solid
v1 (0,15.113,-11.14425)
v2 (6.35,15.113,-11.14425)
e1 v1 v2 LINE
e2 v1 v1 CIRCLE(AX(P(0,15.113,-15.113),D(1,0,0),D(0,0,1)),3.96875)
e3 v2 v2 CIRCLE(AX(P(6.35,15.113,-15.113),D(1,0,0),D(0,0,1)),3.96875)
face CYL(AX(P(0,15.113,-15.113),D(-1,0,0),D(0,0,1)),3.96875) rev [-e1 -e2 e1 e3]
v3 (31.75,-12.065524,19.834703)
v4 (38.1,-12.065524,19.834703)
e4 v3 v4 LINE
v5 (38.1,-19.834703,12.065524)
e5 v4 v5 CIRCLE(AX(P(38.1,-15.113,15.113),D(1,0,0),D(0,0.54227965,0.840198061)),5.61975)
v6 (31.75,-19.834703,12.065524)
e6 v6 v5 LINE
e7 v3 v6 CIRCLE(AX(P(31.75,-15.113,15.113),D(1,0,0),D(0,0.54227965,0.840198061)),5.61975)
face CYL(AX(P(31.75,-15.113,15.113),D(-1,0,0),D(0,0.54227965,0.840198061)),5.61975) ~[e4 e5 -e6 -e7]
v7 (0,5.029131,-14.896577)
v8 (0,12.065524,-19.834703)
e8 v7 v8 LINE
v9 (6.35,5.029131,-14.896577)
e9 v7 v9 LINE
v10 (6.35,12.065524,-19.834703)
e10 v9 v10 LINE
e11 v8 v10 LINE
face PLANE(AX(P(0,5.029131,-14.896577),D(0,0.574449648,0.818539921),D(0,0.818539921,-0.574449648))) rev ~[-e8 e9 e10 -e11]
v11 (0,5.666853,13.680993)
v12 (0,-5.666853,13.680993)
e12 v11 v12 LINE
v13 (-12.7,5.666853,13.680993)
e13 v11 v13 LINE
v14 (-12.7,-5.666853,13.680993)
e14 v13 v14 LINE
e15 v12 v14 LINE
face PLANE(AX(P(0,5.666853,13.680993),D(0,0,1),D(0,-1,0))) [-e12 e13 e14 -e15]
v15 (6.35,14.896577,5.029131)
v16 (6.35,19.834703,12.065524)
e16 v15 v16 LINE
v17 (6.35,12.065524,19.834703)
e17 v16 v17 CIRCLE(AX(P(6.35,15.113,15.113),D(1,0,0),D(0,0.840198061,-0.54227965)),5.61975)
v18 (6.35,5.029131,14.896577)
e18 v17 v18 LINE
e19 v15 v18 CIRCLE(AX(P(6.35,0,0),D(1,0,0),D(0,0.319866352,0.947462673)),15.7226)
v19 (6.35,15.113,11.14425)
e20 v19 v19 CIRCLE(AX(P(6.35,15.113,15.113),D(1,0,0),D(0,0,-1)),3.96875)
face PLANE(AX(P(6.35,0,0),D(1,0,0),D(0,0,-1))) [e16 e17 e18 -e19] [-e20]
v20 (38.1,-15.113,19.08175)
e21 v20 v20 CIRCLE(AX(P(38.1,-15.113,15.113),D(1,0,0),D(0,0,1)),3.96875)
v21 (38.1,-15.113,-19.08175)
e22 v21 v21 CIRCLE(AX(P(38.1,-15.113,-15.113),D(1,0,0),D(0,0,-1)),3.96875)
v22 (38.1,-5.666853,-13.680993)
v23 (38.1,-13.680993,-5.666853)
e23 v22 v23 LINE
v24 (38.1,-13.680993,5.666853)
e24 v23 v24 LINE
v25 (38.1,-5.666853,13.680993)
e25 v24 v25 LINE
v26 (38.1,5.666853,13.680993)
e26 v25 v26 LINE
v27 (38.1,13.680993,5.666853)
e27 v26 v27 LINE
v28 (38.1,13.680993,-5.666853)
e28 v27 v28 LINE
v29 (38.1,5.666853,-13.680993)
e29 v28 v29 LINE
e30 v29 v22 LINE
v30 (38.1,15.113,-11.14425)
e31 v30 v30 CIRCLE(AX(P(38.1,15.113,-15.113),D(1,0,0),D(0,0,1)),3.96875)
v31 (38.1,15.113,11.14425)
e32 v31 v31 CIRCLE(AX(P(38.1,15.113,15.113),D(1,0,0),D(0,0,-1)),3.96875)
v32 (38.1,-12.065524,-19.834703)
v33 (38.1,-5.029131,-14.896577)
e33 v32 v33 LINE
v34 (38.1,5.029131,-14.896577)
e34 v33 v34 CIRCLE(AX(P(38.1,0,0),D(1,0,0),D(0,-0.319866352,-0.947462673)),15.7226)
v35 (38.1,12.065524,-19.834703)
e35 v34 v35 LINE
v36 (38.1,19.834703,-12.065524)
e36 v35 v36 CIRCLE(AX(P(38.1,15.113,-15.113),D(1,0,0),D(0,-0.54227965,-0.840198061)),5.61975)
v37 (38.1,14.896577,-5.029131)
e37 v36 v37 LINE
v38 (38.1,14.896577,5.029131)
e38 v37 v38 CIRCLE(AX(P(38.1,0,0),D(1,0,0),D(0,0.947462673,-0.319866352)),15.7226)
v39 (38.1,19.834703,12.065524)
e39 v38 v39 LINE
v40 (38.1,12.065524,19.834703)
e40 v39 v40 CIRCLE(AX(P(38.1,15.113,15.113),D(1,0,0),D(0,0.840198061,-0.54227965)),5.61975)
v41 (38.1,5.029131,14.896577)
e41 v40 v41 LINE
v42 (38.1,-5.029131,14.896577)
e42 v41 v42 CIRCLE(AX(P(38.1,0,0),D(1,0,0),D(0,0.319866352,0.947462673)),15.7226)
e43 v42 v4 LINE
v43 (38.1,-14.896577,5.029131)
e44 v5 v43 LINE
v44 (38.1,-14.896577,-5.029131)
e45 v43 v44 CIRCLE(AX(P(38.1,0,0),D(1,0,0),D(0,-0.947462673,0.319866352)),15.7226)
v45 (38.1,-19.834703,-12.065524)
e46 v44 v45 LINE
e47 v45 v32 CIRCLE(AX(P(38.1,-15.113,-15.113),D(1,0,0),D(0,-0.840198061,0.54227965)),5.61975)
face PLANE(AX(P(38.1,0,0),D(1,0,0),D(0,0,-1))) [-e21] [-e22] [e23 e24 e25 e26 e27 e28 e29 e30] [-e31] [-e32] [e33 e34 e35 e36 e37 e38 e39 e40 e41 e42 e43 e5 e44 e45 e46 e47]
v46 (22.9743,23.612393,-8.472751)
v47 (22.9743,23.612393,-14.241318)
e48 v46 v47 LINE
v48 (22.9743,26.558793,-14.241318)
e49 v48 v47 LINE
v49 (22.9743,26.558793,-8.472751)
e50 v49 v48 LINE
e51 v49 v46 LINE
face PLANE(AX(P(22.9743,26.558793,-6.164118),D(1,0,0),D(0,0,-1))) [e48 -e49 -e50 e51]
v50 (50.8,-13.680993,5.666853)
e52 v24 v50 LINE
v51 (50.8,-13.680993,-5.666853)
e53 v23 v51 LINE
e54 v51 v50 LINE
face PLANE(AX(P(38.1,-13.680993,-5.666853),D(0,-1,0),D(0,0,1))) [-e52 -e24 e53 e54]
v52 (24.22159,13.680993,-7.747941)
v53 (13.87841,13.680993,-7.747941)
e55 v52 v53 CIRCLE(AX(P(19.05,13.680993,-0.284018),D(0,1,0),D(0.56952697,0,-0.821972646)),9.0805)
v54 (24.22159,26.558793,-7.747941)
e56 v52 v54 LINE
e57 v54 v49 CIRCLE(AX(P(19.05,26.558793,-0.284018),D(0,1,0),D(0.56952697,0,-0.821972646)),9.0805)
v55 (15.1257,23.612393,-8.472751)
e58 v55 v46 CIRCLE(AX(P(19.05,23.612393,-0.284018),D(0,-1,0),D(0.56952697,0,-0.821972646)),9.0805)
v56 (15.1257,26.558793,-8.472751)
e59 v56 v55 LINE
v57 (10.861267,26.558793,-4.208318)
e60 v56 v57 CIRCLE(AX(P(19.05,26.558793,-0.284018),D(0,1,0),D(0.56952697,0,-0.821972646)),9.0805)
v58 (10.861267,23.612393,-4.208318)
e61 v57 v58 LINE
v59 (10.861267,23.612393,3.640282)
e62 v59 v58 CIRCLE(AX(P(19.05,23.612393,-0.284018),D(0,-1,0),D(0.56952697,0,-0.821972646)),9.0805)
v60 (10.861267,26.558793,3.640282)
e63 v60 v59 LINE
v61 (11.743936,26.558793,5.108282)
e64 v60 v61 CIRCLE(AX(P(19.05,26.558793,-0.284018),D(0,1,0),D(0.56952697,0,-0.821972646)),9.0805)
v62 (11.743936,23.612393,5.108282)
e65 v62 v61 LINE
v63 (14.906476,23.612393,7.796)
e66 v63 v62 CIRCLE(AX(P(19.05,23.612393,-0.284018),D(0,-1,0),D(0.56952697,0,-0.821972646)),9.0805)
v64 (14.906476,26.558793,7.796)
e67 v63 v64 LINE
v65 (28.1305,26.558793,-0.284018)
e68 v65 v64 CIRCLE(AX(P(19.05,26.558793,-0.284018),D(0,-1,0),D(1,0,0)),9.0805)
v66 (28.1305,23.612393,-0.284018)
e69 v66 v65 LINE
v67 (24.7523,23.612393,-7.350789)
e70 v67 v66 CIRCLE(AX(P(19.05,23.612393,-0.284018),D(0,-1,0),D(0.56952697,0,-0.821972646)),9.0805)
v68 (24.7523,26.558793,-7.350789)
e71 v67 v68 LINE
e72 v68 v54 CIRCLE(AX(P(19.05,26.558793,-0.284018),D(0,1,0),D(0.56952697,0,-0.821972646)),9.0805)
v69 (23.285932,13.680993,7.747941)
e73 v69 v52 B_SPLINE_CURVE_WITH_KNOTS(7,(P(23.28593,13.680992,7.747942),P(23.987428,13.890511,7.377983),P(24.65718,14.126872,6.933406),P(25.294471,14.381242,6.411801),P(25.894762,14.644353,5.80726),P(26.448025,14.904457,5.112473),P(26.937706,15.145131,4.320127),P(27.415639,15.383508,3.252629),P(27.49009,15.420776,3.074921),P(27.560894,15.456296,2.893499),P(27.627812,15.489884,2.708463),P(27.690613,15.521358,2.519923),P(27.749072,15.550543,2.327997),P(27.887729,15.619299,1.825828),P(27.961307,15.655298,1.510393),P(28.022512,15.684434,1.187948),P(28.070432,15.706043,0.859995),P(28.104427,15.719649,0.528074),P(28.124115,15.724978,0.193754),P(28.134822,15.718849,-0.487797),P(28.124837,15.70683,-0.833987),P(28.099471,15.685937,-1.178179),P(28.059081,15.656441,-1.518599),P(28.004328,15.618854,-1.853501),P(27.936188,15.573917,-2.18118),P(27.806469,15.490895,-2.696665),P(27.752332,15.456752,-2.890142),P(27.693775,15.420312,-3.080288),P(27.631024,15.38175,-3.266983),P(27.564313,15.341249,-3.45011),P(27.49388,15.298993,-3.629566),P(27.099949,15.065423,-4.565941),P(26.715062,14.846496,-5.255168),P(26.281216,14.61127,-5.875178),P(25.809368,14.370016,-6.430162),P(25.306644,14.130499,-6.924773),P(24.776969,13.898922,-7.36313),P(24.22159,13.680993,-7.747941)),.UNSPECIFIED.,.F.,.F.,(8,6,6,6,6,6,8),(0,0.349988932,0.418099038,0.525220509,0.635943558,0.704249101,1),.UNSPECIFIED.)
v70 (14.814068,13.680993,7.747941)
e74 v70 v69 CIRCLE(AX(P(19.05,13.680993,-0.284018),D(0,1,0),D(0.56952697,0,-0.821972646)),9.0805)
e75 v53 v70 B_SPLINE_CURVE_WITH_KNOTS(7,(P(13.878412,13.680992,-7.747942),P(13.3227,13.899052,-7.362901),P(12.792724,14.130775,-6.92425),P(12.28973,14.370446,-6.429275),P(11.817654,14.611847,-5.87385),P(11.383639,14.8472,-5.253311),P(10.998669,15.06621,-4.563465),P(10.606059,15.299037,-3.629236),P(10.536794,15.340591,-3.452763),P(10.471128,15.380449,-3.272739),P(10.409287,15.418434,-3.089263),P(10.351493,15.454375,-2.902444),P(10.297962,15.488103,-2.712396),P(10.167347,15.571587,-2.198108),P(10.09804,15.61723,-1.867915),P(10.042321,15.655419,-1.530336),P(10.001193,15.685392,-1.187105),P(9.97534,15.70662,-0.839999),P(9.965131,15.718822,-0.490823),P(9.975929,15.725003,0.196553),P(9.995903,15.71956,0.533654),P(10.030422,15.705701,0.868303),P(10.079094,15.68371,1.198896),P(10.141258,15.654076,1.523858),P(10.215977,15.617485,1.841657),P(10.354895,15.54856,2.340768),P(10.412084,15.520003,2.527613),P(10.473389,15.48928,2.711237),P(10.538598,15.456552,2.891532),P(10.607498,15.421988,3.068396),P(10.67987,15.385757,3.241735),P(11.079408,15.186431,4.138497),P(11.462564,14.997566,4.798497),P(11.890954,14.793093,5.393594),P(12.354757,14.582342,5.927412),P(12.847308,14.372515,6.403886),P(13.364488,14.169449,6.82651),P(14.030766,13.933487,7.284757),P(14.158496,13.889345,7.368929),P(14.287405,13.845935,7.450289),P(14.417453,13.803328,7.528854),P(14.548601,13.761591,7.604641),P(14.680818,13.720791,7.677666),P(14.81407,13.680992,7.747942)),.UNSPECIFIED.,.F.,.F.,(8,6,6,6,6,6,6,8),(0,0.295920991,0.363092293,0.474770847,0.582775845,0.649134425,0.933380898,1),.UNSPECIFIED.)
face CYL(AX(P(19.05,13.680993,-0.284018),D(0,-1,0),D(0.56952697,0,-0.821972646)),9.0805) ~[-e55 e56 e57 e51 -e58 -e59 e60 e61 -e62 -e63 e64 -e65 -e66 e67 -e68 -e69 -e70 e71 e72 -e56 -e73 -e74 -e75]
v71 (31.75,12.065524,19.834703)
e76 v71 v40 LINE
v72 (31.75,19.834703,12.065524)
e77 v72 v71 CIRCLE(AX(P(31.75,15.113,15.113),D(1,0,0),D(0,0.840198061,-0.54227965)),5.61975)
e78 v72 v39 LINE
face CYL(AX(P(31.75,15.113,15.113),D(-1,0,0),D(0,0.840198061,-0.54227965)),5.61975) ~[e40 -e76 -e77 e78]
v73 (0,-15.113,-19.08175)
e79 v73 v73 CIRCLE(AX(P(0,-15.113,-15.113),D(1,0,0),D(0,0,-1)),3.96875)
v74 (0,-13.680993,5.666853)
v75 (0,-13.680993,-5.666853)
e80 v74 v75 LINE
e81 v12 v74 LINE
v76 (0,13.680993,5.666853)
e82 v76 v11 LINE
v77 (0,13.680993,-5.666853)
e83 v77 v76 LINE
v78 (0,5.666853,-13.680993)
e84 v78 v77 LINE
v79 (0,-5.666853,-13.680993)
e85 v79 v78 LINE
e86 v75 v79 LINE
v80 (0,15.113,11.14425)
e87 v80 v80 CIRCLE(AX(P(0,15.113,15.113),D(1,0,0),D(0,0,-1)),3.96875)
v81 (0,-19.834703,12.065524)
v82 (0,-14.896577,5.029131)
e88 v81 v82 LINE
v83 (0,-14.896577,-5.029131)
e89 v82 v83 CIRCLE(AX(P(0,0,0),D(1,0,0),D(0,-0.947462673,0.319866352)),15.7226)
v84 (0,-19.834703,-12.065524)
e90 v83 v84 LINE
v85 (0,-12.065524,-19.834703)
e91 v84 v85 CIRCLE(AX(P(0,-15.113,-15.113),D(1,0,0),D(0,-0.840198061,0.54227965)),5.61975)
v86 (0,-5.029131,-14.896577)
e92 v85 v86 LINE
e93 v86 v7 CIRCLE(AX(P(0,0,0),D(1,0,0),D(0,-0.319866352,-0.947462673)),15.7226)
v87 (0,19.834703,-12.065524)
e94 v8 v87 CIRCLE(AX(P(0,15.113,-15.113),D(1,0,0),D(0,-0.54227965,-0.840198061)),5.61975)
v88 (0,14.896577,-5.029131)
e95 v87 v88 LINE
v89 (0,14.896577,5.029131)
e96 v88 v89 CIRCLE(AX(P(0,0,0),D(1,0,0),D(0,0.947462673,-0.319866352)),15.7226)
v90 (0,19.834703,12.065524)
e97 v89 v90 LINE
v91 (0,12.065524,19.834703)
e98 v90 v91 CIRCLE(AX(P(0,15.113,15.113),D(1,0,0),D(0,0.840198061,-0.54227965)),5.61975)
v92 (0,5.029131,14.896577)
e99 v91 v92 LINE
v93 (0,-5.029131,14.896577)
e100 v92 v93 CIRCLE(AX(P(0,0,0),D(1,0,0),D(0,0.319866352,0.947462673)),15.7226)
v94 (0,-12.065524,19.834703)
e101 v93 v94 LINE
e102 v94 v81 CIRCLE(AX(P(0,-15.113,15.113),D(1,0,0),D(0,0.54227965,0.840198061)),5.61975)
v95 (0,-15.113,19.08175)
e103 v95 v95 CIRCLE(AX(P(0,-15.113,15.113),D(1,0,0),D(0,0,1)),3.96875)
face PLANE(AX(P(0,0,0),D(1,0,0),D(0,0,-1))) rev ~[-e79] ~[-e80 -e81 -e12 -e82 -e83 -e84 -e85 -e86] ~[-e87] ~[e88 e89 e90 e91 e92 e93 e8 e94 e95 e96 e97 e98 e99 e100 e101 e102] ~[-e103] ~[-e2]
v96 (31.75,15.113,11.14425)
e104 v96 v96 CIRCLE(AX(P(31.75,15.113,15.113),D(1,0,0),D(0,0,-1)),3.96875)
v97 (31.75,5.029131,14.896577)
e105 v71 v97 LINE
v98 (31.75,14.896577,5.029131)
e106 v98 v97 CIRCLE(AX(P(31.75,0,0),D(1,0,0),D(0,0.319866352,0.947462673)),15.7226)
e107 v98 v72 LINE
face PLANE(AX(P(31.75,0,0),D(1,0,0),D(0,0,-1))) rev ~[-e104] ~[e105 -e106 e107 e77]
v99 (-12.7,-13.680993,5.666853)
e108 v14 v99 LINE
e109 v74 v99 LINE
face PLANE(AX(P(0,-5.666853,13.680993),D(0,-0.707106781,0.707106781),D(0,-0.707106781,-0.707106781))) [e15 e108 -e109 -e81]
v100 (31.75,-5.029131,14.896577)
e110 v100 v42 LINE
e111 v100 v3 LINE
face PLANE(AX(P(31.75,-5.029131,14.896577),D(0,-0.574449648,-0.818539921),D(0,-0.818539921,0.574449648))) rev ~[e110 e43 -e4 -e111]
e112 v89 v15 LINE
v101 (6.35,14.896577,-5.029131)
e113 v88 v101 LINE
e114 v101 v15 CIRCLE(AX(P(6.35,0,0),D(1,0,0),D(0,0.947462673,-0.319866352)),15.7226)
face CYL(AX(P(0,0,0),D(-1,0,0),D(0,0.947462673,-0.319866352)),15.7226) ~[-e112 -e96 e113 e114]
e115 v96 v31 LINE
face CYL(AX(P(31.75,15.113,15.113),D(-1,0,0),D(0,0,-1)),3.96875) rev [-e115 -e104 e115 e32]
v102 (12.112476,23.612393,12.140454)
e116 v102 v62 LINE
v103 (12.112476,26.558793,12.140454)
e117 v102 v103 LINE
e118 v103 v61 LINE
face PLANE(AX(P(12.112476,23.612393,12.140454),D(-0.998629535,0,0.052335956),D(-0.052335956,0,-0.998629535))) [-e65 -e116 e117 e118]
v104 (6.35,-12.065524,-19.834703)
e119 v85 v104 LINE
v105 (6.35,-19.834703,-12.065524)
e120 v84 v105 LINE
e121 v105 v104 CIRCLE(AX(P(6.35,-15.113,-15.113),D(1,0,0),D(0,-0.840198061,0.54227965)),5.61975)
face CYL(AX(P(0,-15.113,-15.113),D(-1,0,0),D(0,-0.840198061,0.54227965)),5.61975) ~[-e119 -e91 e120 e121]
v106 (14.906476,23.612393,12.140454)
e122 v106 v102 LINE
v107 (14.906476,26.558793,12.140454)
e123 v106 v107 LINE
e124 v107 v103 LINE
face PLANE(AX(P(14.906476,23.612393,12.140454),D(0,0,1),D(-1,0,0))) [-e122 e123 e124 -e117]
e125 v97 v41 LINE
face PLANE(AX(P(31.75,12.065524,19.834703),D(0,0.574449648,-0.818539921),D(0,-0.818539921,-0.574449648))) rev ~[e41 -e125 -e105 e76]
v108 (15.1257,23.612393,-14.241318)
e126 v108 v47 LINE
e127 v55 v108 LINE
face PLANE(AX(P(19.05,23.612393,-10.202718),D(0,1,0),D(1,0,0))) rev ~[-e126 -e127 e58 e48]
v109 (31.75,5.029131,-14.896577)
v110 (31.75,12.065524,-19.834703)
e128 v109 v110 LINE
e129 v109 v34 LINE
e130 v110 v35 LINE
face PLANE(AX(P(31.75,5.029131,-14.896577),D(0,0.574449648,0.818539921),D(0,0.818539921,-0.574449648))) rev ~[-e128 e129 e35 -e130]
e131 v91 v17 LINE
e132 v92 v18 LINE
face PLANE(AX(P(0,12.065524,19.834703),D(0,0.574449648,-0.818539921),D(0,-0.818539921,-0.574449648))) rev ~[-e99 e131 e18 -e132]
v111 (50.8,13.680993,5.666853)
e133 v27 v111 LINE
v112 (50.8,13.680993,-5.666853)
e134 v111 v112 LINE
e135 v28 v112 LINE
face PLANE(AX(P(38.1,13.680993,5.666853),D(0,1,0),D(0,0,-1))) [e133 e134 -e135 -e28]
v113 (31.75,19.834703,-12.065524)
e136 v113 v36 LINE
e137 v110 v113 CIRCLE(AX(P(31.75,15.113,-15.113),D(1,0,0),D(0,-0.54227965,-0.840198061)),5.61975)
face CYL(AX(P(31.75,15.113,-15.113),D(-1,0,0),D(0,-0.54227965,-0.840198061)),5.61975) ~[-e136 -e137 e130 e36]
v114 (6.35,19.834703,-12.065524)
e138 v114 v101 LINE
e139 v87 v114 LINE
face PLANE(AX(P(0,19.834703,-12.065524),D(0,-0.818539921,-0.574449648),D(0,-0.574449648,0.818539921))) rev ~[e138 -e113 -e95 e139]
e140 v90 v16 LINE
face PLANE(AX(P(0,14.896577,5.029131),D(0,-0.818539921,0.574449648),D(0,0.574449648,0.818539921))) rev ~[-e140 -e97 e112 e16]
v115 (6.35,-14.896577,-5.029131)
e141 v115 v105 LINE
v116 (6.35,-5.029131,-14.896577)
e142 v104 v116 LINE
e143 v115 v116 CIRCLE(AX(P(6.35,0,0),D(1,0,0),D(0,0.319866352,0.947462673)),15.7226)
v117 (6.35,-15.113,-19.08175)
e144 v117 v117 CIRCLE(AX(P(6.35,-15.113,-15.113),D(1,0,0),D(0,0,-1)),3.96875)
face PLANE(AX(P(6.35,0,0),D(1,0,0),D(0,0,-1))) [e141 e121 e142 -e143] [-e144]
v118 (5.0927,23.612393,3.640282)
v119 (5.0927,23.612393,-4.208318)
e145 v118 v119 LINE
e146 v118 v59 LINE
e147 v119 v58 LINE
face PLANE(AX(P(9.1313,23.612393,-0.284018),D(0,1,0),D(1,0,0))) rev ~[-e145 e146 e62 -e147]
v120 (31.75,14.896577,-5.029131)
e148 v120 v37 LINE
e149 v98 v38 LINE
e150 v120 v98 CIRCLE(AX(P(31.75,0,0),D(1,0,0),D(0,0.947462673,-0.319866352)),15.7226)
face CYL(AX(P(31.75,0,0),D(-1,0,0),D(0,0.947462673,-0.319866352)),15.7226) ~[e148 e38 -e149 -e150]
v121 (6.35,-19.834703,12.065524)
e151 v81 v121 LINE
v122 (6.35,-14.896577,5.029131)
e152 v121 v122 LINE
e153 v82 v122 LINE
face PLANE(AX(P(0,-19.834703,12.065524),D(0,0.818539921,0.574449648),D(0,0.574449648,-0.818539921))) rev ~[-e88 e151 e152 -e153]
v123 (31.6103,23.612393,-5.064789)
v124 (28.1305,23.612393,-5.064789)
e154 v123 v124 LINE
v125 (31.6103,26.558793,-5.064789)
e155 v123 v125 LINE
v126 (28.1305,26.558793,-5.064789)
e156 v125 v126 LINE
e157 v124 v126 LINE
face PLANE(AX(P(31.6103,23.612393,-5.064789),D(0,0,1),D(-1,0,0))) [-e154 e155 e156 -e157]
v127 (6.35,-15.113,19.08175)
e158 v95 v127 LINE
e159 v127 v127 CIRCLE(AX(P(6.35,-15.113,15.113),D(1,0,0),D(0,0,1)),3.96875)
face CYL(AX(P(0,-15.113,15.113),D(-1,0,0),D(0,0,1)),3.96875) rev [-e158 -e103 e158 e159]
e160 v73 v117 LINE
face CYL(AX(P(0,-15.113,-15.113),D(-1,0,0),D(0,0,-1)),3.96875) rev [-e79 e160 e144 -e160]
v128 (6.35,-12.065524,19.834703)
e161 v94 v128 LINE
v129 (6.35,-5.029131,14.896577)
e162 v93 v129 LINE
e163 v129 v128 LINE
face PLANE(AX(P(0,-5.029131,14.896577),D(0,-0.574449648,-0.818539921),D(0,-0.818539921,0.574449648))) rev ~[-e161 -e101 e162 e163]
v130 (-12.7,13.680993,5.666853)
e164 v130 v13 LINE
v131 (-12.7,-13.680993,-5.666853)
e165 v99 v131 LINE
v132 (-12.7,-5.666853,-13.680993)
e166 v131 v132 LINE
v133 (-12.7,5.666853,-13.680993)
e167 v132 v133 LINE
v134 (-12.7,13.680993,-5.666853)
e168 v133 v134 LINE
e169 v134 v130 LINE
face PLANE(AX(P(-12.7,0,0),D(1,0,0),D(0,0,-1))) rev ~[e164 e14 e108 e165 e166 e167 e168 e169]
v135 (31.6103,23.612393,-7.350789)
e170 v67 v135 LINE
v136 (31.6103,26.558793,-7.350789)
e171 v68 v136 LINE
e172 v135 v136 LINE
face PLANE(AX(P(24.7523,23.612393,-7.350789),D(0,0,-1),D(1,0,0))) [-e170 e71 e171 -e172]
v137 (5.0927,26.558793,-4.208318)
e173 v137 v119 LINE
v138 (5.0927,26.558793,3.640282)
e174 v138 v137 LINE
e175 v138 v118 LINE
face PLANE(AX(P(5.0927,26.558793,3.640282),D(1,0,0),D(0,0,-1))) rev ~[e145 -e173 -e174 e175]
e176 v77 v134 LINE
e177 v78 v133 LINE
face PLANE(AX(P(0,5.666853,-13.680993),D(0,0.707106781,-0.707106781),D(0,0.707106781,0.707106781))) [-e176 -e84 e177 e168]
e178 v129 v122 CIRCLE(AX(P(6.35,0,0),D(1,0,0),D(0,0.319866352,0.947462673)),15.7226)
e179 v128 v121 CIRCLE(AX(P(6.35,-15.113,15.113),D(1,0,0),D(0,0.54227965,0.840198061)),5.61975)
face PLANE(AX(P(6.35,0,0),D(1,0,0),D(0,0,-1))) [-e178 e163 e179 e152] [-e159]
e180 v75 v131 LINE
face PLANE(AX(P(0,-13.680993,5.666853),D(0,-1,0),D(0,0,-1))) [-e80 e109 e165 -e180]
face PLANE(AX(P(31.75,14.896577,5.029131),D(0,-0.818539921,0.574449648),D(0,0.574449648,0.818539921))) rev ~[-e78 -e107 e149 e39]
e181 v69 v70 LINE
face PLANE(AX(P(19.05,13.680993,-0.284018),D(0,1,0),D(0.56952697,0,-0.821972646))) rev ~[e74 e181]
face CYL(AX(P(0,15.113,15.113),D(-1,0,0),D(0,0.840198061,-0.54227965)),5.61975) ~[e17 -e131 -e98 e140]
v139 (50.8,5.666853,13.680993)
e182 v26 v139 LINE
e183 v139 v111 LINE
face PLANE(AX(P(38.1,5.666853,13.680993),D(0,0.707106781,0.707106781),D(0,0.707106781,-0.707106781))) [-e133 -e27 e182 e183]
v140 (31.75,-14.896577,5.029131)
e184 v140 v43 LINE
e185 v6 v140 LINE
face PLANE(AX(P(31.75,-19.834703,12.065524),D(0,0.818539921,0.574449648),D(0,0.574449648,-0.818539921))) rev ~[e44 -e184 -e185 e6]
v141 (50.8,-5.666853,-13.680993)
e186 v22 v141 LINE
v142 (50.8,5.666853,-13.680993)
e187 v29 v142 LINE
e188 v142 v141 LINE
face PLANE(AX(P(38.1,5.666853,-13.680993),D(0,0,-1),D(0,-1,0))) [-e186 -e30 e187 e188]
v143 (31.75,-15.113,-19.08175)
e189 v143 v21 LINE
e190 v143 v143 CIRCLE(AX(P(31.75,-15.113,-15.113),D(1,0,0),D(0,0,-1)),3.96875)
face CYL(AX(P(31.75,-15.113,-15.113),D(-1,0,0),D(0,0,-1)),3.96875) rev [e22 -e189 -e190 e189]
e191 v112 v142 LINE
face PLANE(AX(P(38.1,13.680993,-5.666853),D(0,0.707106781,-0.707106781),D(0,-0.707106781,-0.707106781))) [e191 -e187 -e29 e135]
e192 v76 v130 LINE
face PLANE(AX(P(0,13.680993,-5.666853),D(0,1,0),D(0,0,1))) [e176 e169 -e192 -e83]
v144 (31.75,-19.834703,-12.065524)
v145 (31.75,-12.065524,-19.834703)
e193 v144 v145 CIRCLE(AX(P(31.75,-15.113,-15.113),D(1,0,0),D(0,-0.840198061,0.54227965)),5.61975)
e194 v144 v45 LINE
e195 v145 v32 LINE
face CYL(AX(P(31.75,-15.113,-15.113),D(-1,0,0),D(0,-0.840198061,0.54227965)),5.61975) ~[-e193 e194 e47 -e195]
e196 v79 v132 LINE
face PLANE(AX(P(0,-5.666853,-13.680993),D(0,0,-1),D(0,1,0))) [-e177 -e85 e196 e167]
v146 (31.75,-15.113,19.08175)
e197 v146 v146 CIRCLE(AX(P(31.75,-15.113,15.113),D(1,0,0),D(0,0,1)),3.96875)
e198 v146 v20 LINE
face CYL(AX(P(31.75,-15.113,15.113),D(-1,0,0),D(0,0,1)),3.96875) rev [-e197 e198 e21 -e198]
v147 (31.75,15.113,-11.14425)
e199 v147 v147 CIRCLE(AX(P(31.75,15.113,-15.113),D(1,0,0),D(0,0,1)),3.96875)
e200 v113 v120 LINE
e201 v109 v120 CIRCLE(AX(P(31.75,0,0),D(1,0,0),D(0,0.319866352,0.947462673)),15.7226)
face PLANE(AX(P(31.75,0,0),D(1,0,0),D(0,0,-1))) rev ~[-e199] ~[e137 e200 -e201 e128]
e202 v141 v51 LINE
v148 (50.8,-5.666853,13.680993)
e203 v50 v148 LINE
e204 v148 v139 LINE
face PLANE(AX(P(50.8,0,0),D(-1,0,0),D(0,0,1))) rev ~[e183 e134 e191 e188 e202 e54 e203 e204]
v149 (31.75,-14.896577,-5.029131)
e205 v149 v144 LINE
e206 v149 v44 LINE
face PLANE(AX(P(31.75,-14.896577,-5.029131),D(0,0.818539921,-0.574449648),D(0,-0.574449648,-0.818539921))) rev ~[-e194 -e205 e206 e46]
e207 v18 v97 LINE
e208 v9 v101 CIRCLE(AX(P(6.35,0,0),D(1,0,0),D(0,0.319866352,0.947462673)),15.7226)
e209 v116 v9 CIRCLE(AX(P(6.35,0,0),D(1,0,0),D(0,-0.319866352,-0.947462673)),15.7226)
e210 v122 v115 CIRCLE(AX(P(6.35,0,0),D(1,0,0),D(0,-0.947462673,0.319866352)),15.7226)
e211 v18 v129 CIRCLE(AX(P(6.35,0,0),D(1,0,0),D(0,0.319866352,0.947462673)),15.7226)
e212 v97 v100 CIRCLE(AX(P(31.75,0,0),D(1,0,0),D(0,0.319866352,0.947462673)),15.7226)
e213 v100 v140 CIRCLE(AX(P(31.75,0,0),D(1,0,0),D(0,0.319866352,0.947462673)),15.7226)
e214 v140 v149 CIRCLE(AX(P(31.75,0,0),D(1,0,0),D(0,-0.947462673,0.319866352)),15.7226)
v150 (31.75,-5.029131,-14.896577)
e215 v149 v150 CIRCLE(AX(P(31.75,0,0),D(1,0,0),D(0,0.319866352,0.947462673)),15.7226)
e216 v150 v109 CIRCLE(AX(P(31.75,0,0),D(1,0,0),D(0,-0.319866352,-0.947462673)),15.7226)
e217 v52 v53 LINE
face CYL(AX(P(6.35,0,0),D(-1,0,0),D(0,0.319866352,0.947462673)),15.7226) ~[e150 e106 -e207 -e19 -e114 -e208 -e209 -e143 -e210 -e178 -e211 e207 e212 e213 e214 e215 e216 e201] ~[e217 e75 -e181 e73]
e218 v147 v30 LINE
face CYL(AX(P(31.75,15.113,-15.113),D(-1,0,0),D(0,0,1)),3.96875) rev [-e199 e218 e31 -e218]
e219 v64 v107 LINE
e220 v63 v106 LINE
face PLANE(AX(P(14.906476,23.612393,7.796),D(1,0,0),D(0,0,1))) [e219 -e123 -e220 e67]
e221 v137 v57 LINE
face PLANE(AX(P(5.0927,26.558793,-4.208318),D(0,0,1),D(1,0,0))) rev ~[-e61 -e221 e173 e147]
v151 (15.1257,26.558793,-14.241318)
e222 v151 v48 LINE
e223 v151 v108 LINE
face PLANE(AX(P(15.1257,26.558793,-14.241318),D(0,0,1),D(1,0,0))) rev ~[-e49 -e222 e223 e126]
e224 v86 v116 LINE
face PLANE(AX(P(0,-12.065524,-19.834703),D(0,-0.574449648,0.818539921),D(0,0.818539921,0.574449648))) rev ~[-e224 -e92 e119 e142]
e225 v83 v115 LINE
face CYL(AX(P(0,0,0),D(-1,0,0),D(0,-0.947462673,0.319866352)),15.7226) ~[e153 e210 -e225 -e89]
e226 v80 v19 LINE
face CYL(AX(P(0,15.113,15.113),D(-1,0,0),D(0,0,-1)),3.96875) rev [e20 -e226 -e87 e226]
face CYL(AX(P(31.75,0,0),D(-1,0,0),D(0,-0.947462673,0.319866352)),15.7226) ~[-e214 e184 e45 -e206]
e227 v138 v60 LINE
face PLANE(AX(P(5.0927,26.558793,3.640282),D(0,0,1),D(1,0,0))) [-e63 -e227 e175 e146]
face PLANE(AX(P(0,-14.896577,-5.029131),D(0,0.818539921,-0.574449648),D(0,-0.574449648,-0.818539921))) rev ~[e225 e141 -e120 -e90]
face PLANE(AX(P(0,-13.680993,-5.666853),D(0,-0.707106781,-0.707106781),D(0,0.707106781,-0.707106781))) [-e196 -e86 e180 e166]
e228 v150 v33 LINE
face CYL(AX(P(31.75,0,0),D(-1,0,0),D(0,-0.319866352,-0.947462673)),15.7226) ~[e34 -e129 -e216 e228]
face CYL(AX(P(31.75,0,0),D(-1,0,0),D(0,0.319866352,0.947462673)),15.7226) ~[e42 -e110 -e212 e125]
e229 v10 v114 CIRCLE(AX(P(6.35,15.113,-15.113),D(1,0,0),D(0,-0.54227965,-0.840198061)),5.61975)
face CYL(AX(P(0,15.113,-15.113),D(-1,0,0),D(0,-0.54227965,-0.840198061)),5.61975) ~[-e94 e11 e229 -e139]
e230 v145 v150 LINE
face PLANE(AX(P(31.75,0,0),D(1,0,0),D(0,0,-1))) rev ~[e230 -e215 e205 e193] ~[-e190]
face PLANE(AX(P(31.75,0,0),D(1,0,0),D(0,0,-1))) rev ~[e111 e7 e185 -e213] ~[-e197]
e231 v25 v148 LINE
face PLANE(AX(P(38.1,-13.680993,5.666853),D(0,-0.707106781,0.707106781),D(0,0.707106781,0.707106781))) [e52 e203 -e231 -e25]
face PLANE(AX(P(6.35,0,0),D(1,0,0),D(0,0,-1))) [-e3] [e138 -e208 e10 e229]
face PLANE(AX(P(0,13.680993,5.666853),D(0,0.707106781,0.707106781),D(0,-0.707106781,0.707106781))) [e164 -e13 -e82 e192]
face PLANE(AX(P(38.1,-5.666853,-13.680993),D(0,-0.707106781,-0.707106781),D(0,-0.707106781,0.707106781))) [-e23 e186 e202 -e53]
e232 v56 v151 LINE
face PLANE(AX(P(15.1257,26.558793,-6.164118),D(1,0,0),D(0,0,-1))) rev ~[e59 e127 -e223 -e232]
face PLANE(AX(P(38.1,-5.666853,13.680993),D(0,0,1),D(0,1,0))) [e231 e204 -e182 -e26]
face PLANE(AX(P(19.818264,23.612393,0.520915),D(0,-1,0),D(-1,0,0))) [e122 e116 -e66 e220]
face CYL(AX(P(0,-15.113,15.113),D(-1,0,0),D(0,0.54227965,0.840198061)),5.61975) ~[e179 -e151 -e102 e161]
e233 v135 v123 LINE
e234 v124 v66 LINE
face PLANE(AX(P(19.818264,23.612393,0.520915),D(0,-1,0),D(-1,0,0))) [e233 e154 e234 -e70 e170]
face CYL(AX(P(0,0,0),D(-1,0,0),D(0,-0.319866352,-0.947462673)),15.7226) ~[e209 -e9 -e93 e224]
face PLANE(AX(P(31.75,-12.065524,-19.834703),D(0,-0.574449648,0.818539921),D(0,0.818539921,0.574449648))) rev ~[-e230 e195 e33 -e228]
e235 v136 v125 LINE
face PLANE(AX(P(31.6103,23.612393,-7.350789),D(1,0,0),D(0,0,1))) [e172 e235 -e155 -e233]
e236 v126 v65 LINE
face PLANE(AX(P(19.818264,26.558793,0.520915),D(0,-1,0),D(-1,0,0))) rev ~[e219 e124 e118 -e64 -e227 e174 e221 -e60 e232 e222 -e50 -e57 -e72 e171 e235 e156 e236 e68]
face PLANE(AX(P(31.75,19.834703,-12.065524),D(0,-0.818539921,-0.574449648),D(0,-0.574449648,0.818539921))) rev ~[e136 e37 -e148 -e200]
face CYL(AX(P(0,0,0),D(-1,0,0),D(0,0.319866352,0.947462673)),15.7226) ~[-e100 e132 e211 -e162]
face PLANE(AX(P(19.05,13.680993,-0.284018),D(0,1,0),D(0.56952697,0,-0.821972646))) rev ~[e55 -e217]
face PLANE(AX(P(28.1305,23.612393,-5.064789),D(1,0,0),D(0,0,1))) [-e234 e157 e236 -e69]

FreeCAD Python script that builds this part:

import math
import FreeCAD as App
import Part
import Sketcher
from FreeCAD import Vector
Q = App.Units.Quantity

doc = App.newDocument("Part")
body = doc.addObject("PartDesign::Body", "Body")

sketch1 = body.newObject("Sketcher::SketchObject", "Sketch")
sketch1.AttachmentSupport = (doc.getObject("YZ_Plane"), [""])
sketch1.MapMode = "FlatFace"
sketch1.addGeometry([
    Part.LineSegment(Vector(12.1, 19.8, 0), Vector(5, 14.9, 0)),
    Part.ArcOfCircle(Part.Circle(Vector(0, 0, 0), Vector(0, 0, 1), 15.7), math.radians(71), math.radians(109)),
    Part.LineSegment(Vector(-5, 14.9, 0), Vector(-12.1, 19.8, 0)),
    Part.ArcOfCircle(Part.Circle(Vector(-15.1, 15.1, 0), Vector(0, 0, 1), 5.6), math.radians(57), math.radians(213)),
    Part.LineSegment(Vector(-19.8, 12.1, 0), Vector(-14.9, 5, 0)),
    Part.ArcOfCircle(Part.Circle(Vector(0, 0, 0), Vector(0, 0, 1), 15.7), math.radians(161), math.radians(199)),
    Part.LineSegment(Vector(-14.9, -5, 0), Vector(-19.8, -12.1, 0)),
    Part.ArcOfCircle(Part.Circle(Vector(-15.1, -15.1, 0), Vector(0, 0, 1), 5.6), math.radians(147), math.radians(303)),
    Part.LineSegment(Vector(-12.1, -19.8, 0), Vector(-5, -14.9, 0)),
    Part.ArcOfCircle(Part.Circle(Vector(0, 0, 0), Vector(0, 0, 1), 15.7), math.radians(-109), math.radians(-71)),
    Part.LineSegment(Vector(5, -14.9, 0), Vector(12.1, -19.8, 0)),
    Part.ArcOfCircle(Part.Circle(Vector(15.1, -15.1, 0), Vector(0, 0, 1), 5.6), math.radians(-123), math.radians(33)),
    Part.LineSegment(Vector(19.8, -12.1, 0), Vector(14.9, -5, 0)),
    Part.ArcOfCircle(Part.Circle(Vector(0, 0, 0), Vector(0, 0, 1), 15.7), math.radians(-19), math.radians(19)),
    Part.LineSegment(Vector(14.9, 5, 0), Vector(19.8, 12.1, 0)),
    Part.ArcOfCircle(Part.Circle(Vector(15.1, 15.1, 0), Vector(0, 0, 1), 5.6), math.radians(-33), math.radians(123)),
    Part.Circle(Vector(-15.1, 15.1, 0), Vector(0, 0, 1), 4),
    Part.Circle(Vector(-15.1, -15.1, 0), Vector(0, 0, 1), 4),
    Part.Circle(Vector(15.1, 15.1, 0), Vector(0, 0, 1), 4),
    Part.Circle(Vector(15.1, -15.1, 0), Vector(0, 0, 1), 4),
], False)
sketch1.addConstraint([
    Sketcher.Constraint("Coincident", 0, 2, 1, 1),
    Sketcher.Constraint("Coincident", 1, 2, 2, 1),
    Sketcher.Constraint("Coincident", 2, 2, 3, 1),
    Sketcher.Constraint("Coincident", 3, 2, 4, 1),
    Sketcher.Constraint("Coincident", 4, 2, 5, 1),
    Sketcher.Constraint("Coincident", 5, 2, 6, 1),
    Sketcher.Constraint("Coincident", 6, 2, 7, 1),
    Sketcher.Constraint("Coincident", 7, 2, 8, 1),
    Sketcher.Constraint("Coincident", 8, 2, 9, 1),
    Sketcher.Constraint("Coincident", 9, 2, 10, 1),
    Sketcher.Constraint("Coincident", 10, 2, 11, 1),
    Sketcher.Constraint("Coincident", 11, 2, 12, 1),
    Sketcher.Constraint("Coincident", 12, 2, 13, 1),
    Sketcher.Constraint("Coincident", 13, 2, 14, 1),
    Sketcher.Constraint("Coincident", 14, 2, 15, 1),
    Sketcher.Constraint("Coincident", 15, 2, 0, 1),
    Sketcher.Constraint("Coincident", 1, 3, -1, 1),
    Sketcher.Constraint("Coincident", 5, 3, -1, 1),
    Sketcher.Constraint("Coincident", 9, 3, -1, 1),
    Sketcher.Constraint("Coincident", 13, 3, -1, 1),
    Sketcher.Constraint("Coincident", 16, 3, 3, 3),
    Sketcher.Constraint("Coincident", 17, 3, 7, 3),
    Sketcher.Constraint("Coincident", 18, 3, 15, 3),
    Sketcher.Constraint("Coincident", 19, 3, 11, 3),
    Sketcher.Constraint("Equal", 1, 5),
    Sketcher.Constraint("Equal", 3, 7),
    Sketcher.Constraint("Equal", 5, 9),
    Sketcher.Constraint("Equal", 7, 11),
    Sketcher.Constraint("Equal", 9, 13),
    Sketcher.Constraint("Equal", 11, 15),
    Sketcher.Constraint("Equal", 16, 17),
    Sketcher.Constraint("Equal", 17, 18),
    Sketcher.Constraint("Equal", 18, 19),
    Sketcher.Constraint("Symmetric", 3, 3, 11, 3, -1, 1),
    Sketcher.Constraint("Symmetric", 7, 3, 15, 3, -1, 1),
    Sketcher.Constraint("Symmetric", 7, 3, 11, 3, -2),
    Sketcher.Constraint("Perpendicular", 0, 4),
    Sketcher.Constraint("Perpendicular", 2, 6),
    Sketcher.Constraint("Perpendicular", 4, 8),
    Sketcher.Constraint("Perpendicular", 6, 10),
    Sketcher.Constraint("Perpendicular", 8, 12),
    Sketcher.Constraint("Perpendicular", 10, 14),
    Sketcher.Constraint("Horizontal", 0, 2, 1, 2),
    Sketcher.Constraint("Horizontal", 8, 2, 9, 2),
    Sketcher.Constraint("Horizontal", 7, 2, 10, 2),
    Sketcher.Constraint("Horizontal", 6, 2, 11, 2),
    Sketcher.Constraint("Horizontal", 4, 2, 13, 2),
    Sketcher.Constraint("Vertical", 4, 2, 5, 2),
    Sketcher.Constraint("Vertical", 2, 2, 7, 2),
    Sketcher.Constraint("Equal", 2, 4),
    Sketcher.Constraint("Diameter", 16, Q("0.3125 in")),
    Sketcher.Constraint("Radius", 1, Q("0.619 in")),
    Sketcher.Constraint("DistanceY", 7, 3, 3, 3, Q("1.19 in")),
    Sketcher.Constraint("DistanceX", 7, 3, 11, 3, Q("1.19 in")),
    Sketcher.Constraint("Radius", 3, 5.61975),
    Sketcher.Constraint("DistanceX", -1, 1, 0, 2, 5.029131),
    Sketcher.Constraint("DistanceX", 3, 2, 2, 2, 7.769179),
])
pad1 = body.newObject("PartDesign::Pad", "Pad")
pad1.Profile = sketch1
pad1.Length = Q("0.25 in")

sketch2 = body.newObject("Sketcher::SketchObject", "Sketch001")
sketch2.AttachmentSupport = (doc.getObject("YZ_Plane"), [""])
sketch2.MapMode = "FlatFace"
sketch2.addGeometry([
    Part.LineSegment(Vector(-6, 14, 0), Vector(6, 14, 0)),
    Part.LineSegment(Vector(6, 14, 0), Vector(14, 6, 0)),
    Part.LineSegment(Vector(14, 6, 0), Vector(14, -6, 0)),
    Part.LineSegment(Vector(14, -6, 0), Vector(6, -14, 0)),
    Part.LineSegment(Vector(6, -14, 0), Vector(-6, -14, 0)),
    Part.LineSegment(Vector(-6, -14, 0), Vector(-14, -6, 0)),
    Part.LineSegment(Vector(-14, -6, 0), Vector(-14, 6, 0)),
    Part.LineSegment(Vector(-14, 6, 0), Vector(-6, 14, 0)),
], False)
sketch2.addConstraint([
    Sketcher.Constraint("Coincident", 0, 2, 1, 1),
    Sketcher.Constraint("Coincident", 1, 2, 2, 1),
    Sketcher.Constraint("Coincident", 2, 2, 3, 1),
    Sketcher.Constraint("Coincident", 3, 2, 4, 1),
    Sketcher.Constraint("Coincident", 4, 2, 5, 1),
    Sketcher.Constraint("Coincident", 5, 2, 6, 1),
    Sketcher.Constraint("Coincident", 6, 2, 7, 1),
    Sketcher.Constraint("Coincident", 7, 2, 0, 1),
    Sketcher.Constraint("Horizontal", 0),
    Sketcher.Constraint("Vertical", 2),
    Sketcher.Constraint("Horizontal", 4),
    Sketcher.Constraint("Vertical", 6),
    Sketcher.Constraint("Symmetric", 0, 2, 4, 2, -1, 1),
    Sketcher.Constraint("Symmetric", 1, 2, 5, 2, -1, 1),
    Sketcher.Constraint("Perpendicular", 1, 3),
    Sketcher.Constraint("Perpendicular", 5, 7),
    Sketcher.Constraint("Horizontal", 2, 2, 5, 2),
    Sketcher.Constraint("Horizontal", 1, 2, 6, 2),
    Sketcher.Constraint("Vertical", 0, 2, 3, 2),
    Sketcher.Constraint("Equal", 4, 2),
    Sketcher.Constraint("DistanceX", 0, 1, 0, 2, 11.333706),
    Sketcher.Constraint("DistanceX", 0, 2, 1, 2, 8.01414),
])
pad2 = body.newObject("PartDesign::Pad", "Pad001")
pad2.Profile = sketch2
pad2.Length = Q("0.5 in")
pad2.Reversed = True

sketch3 = body.newObject("Sketcher::SketchObject", "Sketch002")
sketch3.AttachmentSupport = (doc.getObject("YZ_Plane"), [""])
sketch3.MapMode = "FlatFace"
sketch3.AttachmentOffset = App.Placement(Vector(0, 0, 0.25 * 25.4), App.Rotation())
sketch3.addGeometry(Part.Circle(Vector(0, 0, 0), Vector(0, 0, 1), 16), False)
sketch3.addConstraint([
    Sketcher.Constraint("Coincident", 0, 3, -1, 1),
    Sketcher.Constraint("Diameter", 0, Q("1.238 in")),
])
pad3 = body.newObject("PartDesign::Pad", "Pad002")
pad3.Profile = sketch3
pad3.Length = Q("1 in")

sketch4 = body.newObject("Sketcher::SketchObject", "Sketch003")
sketch4.AttachmentSupport = (doc.getObject("YZ_Plane"), [""])
sketch4.MapMode = "FlatFace"
sketch4.AttachmentOffset = App.Placement(Vector(0, 0, 1.25 * 25.4), App.Rotation())
sketch4.addGeometry([
    Part.LineSegment(Vector(12.1, 19.8, 0), Vector(5, 14.9, 0)),
    Part.ArcOfCircle(Part.Circle(Vector(0, 0, 0), Vector(0, 0, 1), 15.7), math.radians(71), math.radians(109)),
    Part.LineSegment(Vector(-5, 14.9, 0), Vector(-12.1, 19.8, 0)),
    Part.ArcOfCircle(Part.Circle(Vector(-15.1, 15.1, 0), Vector(0, 0, 1), 5.6), math.radians(57), math.radians(213)),
    Part.LineSegment(Vector(-19.8, 12.1, 0), Vector(-14.9, 5, 0)),
    Part.ArcOfCircle(Part.Circle(Vector(0, 0, 0), Vector(0, 0, 1), 15.7), math.radians(161), math.radians(199)),
    Part.LineSegment(Vector(-14.9, -5, 0), Vector(-19.8, -12.1, 0)),
    Part.ArcOfCircle(Part.Circle(Vector(-15.1, -15.1, 0), Vector(0, 0, 1), 5.6), math.radians(147), math.radians(303)),
    Part.LineSegment(Vector(-12.1, -19.8, 0), Vector(-5, -14.9, 0)),
    Part.ArcOfCircle(Part.Circle(Vector(0, 0, 0), Vector(0, 0, 1), 15.7), math.radians(-109), math.radians(-71)),
    Part.LineSegment(Vector(5, -14.9, 0), Vector(12.1, -19.8, 0)),
    Part.ArcOfCircle(Part.Circle(Vector(15.1, -15.1, 0), Vector(0, 0, 1), 5.6), math.radians(-123), math.radians(33)),
    Part.LineSegment(Vector(19.8, -12.1, 0), Vector(14.9, -5, 0)),
    Part.ArcOfCircle(Part.Circle(Vector(0, 0, 0), Vector(0, 0, 1), 15.7), math.radians(-19), math.radians(19)),
    Part.LineSegment(Vector(14.9, 5, 0), Vector(19.8, 12.1, 0)),
    Part.ArcOfCircle(Part.Circle(Vector(15.1, 15.1, 0), Vector(0, 0, 1), 5.6), math.radians(-33), math.radians(123)),
    Part.Circle(Vector(-15.1, 15.1, 0), Vector(0, 0, 1), 4),
    Part.Circle(Vector(-15.1, -15.1, 0), Vector(0, 0, 1), 4),
    Part.Circle(Vector(15.1, 15.1, 0), Vector(0, 0, 1), 4),
    Part.Circle(Vector(15.1, -15.1, 0), Vector(0, 0, 1), 4),
], False)
sketch4.addConstraint([
    Sketcher.Constraint("Coincident", 0, 2, 1, 1),
    Sketcher.Constraint("Coincident", 1, 2, 2, 1),
    Sketcher.Constraint("Coincident", 2, 2, 3, 1),
    Sketcher.Constraint("Coincident", 3, 2, 4, 1),
    Sketcher.Constraint("Coincident", 4, 2, 5, 1),
    Sketcher.Constraint("Coincident", 5, 2, 6, 1),
    Sketcher.Constraint("Coincident", 6, 2, 7, 1),
    Sketcher.Constraint("Coincident", 7, 2, 8, 1),
    Sketcher.Constraint("Coincident", 8, 2, 9, 1),
    Sketcher.Constraint("Coincident", 9, 2, 10, 1),
    Sketcher.Constraint("Coincident", 10, 2, 11, 1),
    Sketcher.Constraint("Coincident", 11, 2, 12, 1),
    Sketcher.Constraint("Coincident", 12, 2, 13, 1),
    Sketcher.Constraint("Coincident", 13, 2, 14, 1),
    Sketcher.Constraint("Coincident", 14, 2, 15, 1),
    Sketcher.Constraint("Coincident", 15, 2, 0, 1),
    Sketcher.Constraint("Coincident", 1, 3, -1, 1),
    Sketcher.Constraint("Coincident", 5, 3, -1, 1),
    Sketcher.Constraint("Coincident", 9, 3, -1, 1),
    Sketcher.Constraint("Coincident", 13, 3, -1, 1),
    Sketcher.Constraint("Coincident", 16, 3, 3, 3),
    Sketcher.Constraint("Coincident", 17, 3, 7, 3),
    Sketcher.Constraint("Coincident", 18, 3, 15, 3),
    Sketcher.Constraint("Coincident", 19, 3, 11, 3),
    Sketcher.Constraint("Equal", 1, 5),
    Sketcher.Constraint("Equal", 3, 7),
    Sketcher.Constraint("Equal", 5, 9),
    Sketcher.Constraint("Equal", 7, 11),
    Sketcher.Constraint("Equal", 9, 13),
    Sketcher.Constraint("Equal", 11, 15),
    Sketcher.Constraint("Equal", 16, 17),
    Sketcher.Constraint("Equal", 17, 18),
    Sketcher.Constraint("Equal", 18, 19),
    Sketcher.Constraint("Symmetric", 3, 3, 11, 3, -1, 1),
    Sketcher.Constraint("Symmetric", 7, 3, 15, 3, -1, 1),
    Sketcher.Constraint("Symmetric", 7, 3, 11, 3, -2),
    Sketcher.Constraint("Perpendicular", 0, 4),
    Sketcher.Constraint("Perpendicular", 2, 6),
    Sketcher.Constraint("Perpendicular", 4, 8),
    Sketcher.Constraint("Perpendicular", 6, 10),
    Sketcher.Constraint("Perpendicular", 8, 12),
    Sketcher.Constraint("Perpendicular", 10, 14),
    Sketcher.Constraint("Horizontal", 0, 2, 1, 2),
    Sketcher.Constraint("Horizontal", 8, 2, 9, 2),
    Sketcher.Constraint("Horizontal", 7, 2, 10, 2),
    Sketcher.Constraint("Horizontal", 6, 2, 11, 2),
    Sketcher.Constraint("Horizontal", 4, 2, 13, 2),
    Sketcher.Constraint("Vertical", 4, 2, 5, 2),
    Sketcher.Constraint("Vertical", 2, 2, 7, 2),
    Sketcher.Constraint("Equal", 2, 4),
    Sketcher.Constraint("Diameter", 16, Q("0.3125 in")),
    Sketcher.Constraint("Radius", 1, Q("0.619 in")),
    Sketcher.Constraint("DistanceY", 7, 3, 3, 3, Q("1.19 in")),
    Sketcher.Constraint("DistanceX", 7, 3, 11, 3, Q("1.19 in")),
    Sketcher.Constraint("Radius", 3, 5.61975),
    Sketcher.Constraint("DistanceX", -1, 1, 0, 2, 5.029131),
    Sketcher.Constraint("DistanceX", 3, 2, 2, 2, 7.769179),
])
pad4 = body.newObject("PartDesign::Pad", "Pad003")
pad4.Profile = sketch4
pad4.Length = Q("0.25 in")

sketch5 = body.newObject("Sketcher::SketchObject", "Sketch004")
sketch5.AttachmentSupport = (doc.getObject("YZ_Plane"), [""])
sketch5.MapMode = "FlatFace"
sketch5.AttachmentOffset = App.Placement(Vector(0, 0, 1.5 * 25.4), App.Rotation())
sketch5.addGeometry([
    Part.LineSegment(Vector(-6, -14, 0), Vector(6, -14, 0)),
    Part.LineSegment(Vector(6, -14, 0), Vector(14, -6, 0)),
    Part.LineSegment(Vector(14, -6, 0), Vector(14, 6, 0)),
    Part.LineSegment(Vector(14, 6, 0), Vector(6, 14, 0)),
    Part.LineSegment(Vector(6, 14, 0), Vector(-6, 14, 0)),
    Part.LineSegment(Vector(-6, 14, 0), Vector(-14, 6, 0)),
    Part.LineSegment(Vector(-14, 6, 0), Vector(-14, -6, 0)),
    Part.LineSegment(Vector(-14, -6, 0), Vector(-6, -14, 0)),
], False)
sketch5.addConstraint([
    Sketcher.Constraint("Coincident", 0, 2, 1, 1),
    Sketcher.Constraint("Coincident", 1, 2, 2, 1),
    Sketcher.Constraint("Coincident", 2, 2, 3, 1),
    Sketcher.Constraint("Coincident", 3, 2, 4, 1),
    Sketcher.Constraint("Coincident", 4, 2, 5, 1),
    Sketcher.Constraint("Coincident", 5, 2, 6, 1),
    Sketcher.Constraint("Coincident", 6, 2, 7, 1),
    Sketcher.Constraint("Coincident", 7, 2, 0, 1),
    Sketcher.Constraint("Horizontal", 0),
    Sketcher.Constraint("Vertical", 2),
    Sketcher.Constraint("Horizontal", 4),
    Sketcher.Constraint("Vertical", 6),
    Sketcher.Constraint("Symmetric", 0, 2, 4, 2, -1, 1),
    Sketcher.Constraint("Symmetric", 1, 2, 5, 2, -1, 1),
    Sketcher.Constraint("Perpendicular", 1, 3),
    Sketcher.Constraint("Perpendicular", 5, 7),
    Sketcher.Constraint("Horizontal", 2, 2, 5, 2),
    Sketcher.Constraint("Horizontal", 1, 2, 6, 2),
    Sketcher.Constraint("Vertical", 0, 2, 3, 2),
    Sketcher.Constraint("Equal", 4, 2),
    Sketcher.Constraint("DistanceX", 0, 1, 0, 2, 11.333706),
    Sketcher.Constraint("DistanceX", 0, 2, 1, 2, 8.01414),
])
pad5 = body.newObject("PartDesign::Pad", "Pad004")
pad5.Profile = sketch5
pad5.Length = Q("0.5 in")

sketch6 = body.newObject("Sketcher::SketchObject", "Sketch005")
sketch6.AttachmentSupport = (doc.getObject("XZ_Plane"), [""])
sketch6.MapMode = "FlatFace"
sketch6.AttachmentOffset = App.Placement(Vector(0, 0, -13.680993), App.Rotation())
sketch6.addGeometry(Part.Circle(Vector(19, 0, 0), Vector(0, 0, 1), 9), False)
sketch6.addConstraint([
    Sketcher.Constraint("Diameter", 0, Q("0.715 in")),
    Sketcher.Constraint("DistanceX", -1, 1, 0, 3, Q("0.75 in")),
    Sketcher.Constraint("DistanceY", 0, 3, -1, 1, 0.284018),
])
pad6 = body.newObject("PartDesign::Pad", "Pad005")
pad6.Profile = sketch6
pad6.Length = Q("0.507 in")
pad6.Reversed = True

sketch7 = body.newObject("Sketcher::SketchObject", "Sketch006")
sketch7.AttachmentSupport = (doc.getObject("XZ_Plane"), [""])
sketch7.MapMode = "FlatFace"
sketch7.AttachmentOffset = App.Placement(Vector(0, 0, -26.558793), App.Rotation())
sketch7.addGeometry([
    Part.LineSegment(Vector(15, -14, 0), Vector(15, -6, 0)),
    Part.LineSegment(Vector(15, -6, 0), Vector(23, -6, 0)),
    Part.LineSegment(Vector(23, -6, 0), Vector(23, -14, 0)),
    Part.LineSegment(Vector(23, -14, 0), Vector(15, -14, 0)),
    Part.LineSegment(Vector(5, -4, 0), Vector(5, 4, 0)),
    Part.LineSegment(Vector(5, 4, 0), Vector(13, 4, 0)),
    Part.LineSegment(Vector(13, 4, 0), Vector(13, -4, 0)),
    Part.LineSegment(Vector(13, -4, 0), Vector(5, -4, 0)),
], False)
sketch7.addConstraint([
    Sketcher.Constraint("Coincident", 0, 2, 1, 1),
    Sketcher.Constraint("Coincident", 1, 2, 2, 1),
    Sketcher.Constraint("Coincident", 2, 2, 3, 1),
    Sketcher.Constraint("Coincident", 3, 2, 0, 1),
    Sketcher.Constraint("Coincident", 4, 2, 5, 1),
    Sketcher.Constraint("Coincident", 5, 2, 6, 1),
    Sketcher.Constraint("Coincident", 6, 2, 7, 1),
    Sketcher.Constraint("Coincident", 7, 2, 4, 1),
    Sketcher.Constraint("Vertical", 0),
    Sketcher.Constraint("Horizontal", 1),
    Sketcher.Constraint("Vertical", 2),
    Sketcher.Constraint("Horizontal", 3),
    Sketcher.Constraint("Vertical", 4),
    Sketcher.Constraint("Horizontal", 5),
    Sketcher.Constraint("Vertical", 6),
    Sketcher.Constraint("Horizontal", 7),
    Sketcher.Constraint("Equal", 7, 0),
    Sketcher.Constraint("Equal", 3, 4),
    Sketcher.Constraint("DistanceX", 1, 1, 1, 2, Q("0.309 in")),
    Sketcher.Constraint("DistanceX", 5, 1, 5, 2, Q("0.318 in")),
    Sketcher.Constraint("DistanceX", 4, 2, 0, 2, Q("0.395 in")),
    Sketcher.Constraint("DistanceY", 0, 2, 4, 2, Q("0.386 in")),
    Sketcher.Constraint("DistanceX", -1, 1, 0, 2, Q("0.5955 in")),
    Sketcher.Constraint("DistanceY", 0, 2, -1, 1, 6.164118),
])
pad7 = body.newObject("PartDesign::Pad", "Pad006")
pad7.Profile = sketch7
pad7.Length = Q("0.116 in")

sketch8 = body.newObject("Sketcher::SketchObject", "Sketch007")
sketch8.AttachmentSupport = (doc.getObject("XZ_Plane"), [""])
sketch8.MapMode = "FlatFace"
sketch8.AttachmentOffset = App.Placement(Vector(0, 0, -23.612393), App.Rotation())
sketch8.addGeometry([
    Part.LineSegment(Vector(31.6, -7.4, 0), Vector(24.8, -7.4, 0)),
    Part.ArcOfCircle(Part.Circle(Vector(19.1, -0.3, 0), Vector(0, 0, 1), 9.1), math.radians(144), math.radians(309)),
    Part.LineSegment(Vector(11.7, 5.1, 0), Vector(12.1, 12.1, 0)),
    Part.LineSegment(Vector(12.1, 12.1, 0), Vector(14.9, 12.1, 0)),
    Part.LineSegment(Vector(14.9, 12.1, 0), Vector(14.9, 7.8, 0)),
    Part.ArcOfCircle(Part.Circle(Vector(19.1, -0.3, 0), Vector(0, 0, 1), 9.1), math.radians(0), math.radians(117)),
    Part.LineSegment(Vector(28.1, -0.3, 0), Vector(28.1, -5.1, 0)),
    Part.LineSegment(Vector(28.1, -5.1, 0), Vector(31.6, -5.1, 0)),
    Part.LineSegment(Vector(31.6, -5.1, 0), Vector(31.6, -7.4, 0)),
], False)
sketch8.addConstraint([
    Sketcher.Constraint("Coincident", 0, 2, 1, 2),
    Sketcher.Constraint("Coincident", 1, 1, 2, 1),
    Sketcher.Constraint("Coincident", 2, 2, 3, 1),
    Sketcher.Constraint("Coincident", 3, 2, 4, 1),
    Sketcher.Constraint("Coincident", 4, 2, 5, 2),
    Sketcher.Constraint("Tangent", 5, 1, 6, 1),
    Sketcher.Constraint("Coincident", 6, 2, 7, 1),
    Sketcher.Constraint("Coincident", 7, 2, 8, 1),
    Sketcher.Constraint("Coincident", 8, 2, 0, 1),
    Sketcher.Constraint("Horizontal", 0),
    Sketcher.Constraint("Horizontal", 3),
    Sketcher.Constraint("Vertical", 4),
    Sketcher.Constraint("Vertical", 6),
    Sketcher.Constraint("Horizontal", 7),
    Sketcher.Constraint("Vertical", 8),
    Sketcher.Constraint("Coincident", 5, 3, 1, 3),
    Sketcher.Constraint("Equal", 1, 5),
    Sketcher.Constraint("Angle", 2, Q("87 deg")),
    Sketcher.Constraint("DistanceX", 0, 2, 0, 1, Q("0.27 in")),
    Sketcher.Constraint("DistanceX", 3, 1, 3, 2, Q("0.11 in")),
    Sketcher.Constraint("DistanceY", 8, 2, 8, 1, Q("0.09 in")),
    Sketcher.Constraint("Radius", 1, Q("0.3575 in")),
    Sketcher.Constraint("DistanceX", 7, 1, 7, 2, Q("0.137 in")),
    Sketcher.Constraint("DistanceX", -1, 1, 1, 3, Q("0.75 in")),
    Sketcher.Constraint("DistanceY", -1, 1, 4, 2, 7.796),
    Sketcher.Constraint("DistanceY", 5, 3, 1, 1, 5.3923),
    Sketcher.Constraint("Distance", 2, 7.041822),
])
pad8 = body.newObject("PartDesign::Pad", "Pad007")
pad8.Profile = sketch8
pad8.Length = Q("0.116 in")
pad8.Reversed = True

doc.recompute()
